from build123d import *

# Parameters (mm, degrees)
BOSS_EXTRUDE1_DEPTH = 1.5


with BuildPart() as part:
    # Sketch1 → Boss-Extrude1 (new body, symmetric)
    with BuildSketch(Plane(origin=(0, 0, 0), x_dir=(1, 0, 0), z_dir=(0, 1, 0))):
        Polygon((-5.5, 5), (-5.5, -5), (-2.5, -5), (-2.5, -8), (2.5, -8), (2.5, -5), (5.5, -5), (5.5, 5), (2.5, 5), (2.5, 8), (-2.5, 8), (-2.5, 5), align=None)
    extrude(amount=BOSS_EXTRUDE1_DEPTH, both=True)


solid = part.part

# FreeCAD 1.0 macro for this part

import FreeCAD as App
import Part
import Sketcher


def add_polygon(sketch, points):
    """Adds a closed chain of lines whose ends are joined by coincident constraints."""
    first, n = sketch.GeometryCount, len(points)
    for a, b in zip(points, points[1:] + points[:1]):
        sketch.addGeometry(Part.LineSegment(App.Vector(*a, 0), App.Vector(*b, 0)), False)
    for i in range(n):
        sketch.addConstraint(Sketcher.Constraint("Coincident", first + i, 2, first + (i + 1) % n, 1))

doc = App.newDocument("Part")
body = doc.addObject("PartDesign::Body", "Body")

# Sketch on XZ plane
sketch1 = body.newObject("Sketcher::SketchObject", "Sketch")
sketch1.AttachmentSupport = (doc.getObject("XZ_Plane"), [""])
sketch1.MapMode = "FlatFace"
add_polygon(sketch1, [(-5.5, -5), (-5.5, 5), (-2.5, 5), (-2.5, 8), (2.5, 8), (2.5, 5), (5.5, 5), (5.5, -5), (2.5, -5), (2.5, -8), (-2.5, -8), (-2.5, -5)])  # lines 0-11
sketch1.addConstraint([
    Sketcher.Constraint("Vertical", 0),
    Sketcher.Constraint("Horizontal", 1),
    Sketcher.Constraint("Vertical", 2),
    Sketcher.Constraint("Horizontal", 3),
    Sketcher.Constraint("Vertical", 4),
    Sketcher.Constraint("Horizontal", 5),
    Sketcher.Constraint("Vertical", 6),
    Sketcher.Constraint("Horizontal", 7),
    Sketcher.Constraint("Vertical", 8),
    Sketcher.Constraint("Horizontal", 9),
    Sketcher.Constraint("Vertical", 10),
    Sketcher.Constraint("Horizontal", 11),
    Sketcher.Constraint("Symmetric", 0, 2, 6, 2, -1, 1),
    Sketcher.Constraint("Symmetric", 2, 2, 8, 2, -1, 1),
    Sketcher.Constraint("Symmetric", 4, 2, 10, 2, -1, 1),
    Sketcher.Constraint("Symmetric", 1, 2, 4, 2, -2),
    Sketcher.Constraint("Equal", 11, 2),
    Sketcher.Constraint("DistanceX", 1, 1, 1, 2, 3.0),
    Sketcher.Constraint("DistanceX", 3, 1, 3, 2, 5.0),
    Sketcher.Constraint("DistanceY", 0, 1, 0, 2, 10.0),
])
pad1 = body.newObject("PartDesign::Pad", "Pad")
pad1.Profile = sketch1
pad1.Length = 3
pad1.Midplane = True

doc.recompute()
